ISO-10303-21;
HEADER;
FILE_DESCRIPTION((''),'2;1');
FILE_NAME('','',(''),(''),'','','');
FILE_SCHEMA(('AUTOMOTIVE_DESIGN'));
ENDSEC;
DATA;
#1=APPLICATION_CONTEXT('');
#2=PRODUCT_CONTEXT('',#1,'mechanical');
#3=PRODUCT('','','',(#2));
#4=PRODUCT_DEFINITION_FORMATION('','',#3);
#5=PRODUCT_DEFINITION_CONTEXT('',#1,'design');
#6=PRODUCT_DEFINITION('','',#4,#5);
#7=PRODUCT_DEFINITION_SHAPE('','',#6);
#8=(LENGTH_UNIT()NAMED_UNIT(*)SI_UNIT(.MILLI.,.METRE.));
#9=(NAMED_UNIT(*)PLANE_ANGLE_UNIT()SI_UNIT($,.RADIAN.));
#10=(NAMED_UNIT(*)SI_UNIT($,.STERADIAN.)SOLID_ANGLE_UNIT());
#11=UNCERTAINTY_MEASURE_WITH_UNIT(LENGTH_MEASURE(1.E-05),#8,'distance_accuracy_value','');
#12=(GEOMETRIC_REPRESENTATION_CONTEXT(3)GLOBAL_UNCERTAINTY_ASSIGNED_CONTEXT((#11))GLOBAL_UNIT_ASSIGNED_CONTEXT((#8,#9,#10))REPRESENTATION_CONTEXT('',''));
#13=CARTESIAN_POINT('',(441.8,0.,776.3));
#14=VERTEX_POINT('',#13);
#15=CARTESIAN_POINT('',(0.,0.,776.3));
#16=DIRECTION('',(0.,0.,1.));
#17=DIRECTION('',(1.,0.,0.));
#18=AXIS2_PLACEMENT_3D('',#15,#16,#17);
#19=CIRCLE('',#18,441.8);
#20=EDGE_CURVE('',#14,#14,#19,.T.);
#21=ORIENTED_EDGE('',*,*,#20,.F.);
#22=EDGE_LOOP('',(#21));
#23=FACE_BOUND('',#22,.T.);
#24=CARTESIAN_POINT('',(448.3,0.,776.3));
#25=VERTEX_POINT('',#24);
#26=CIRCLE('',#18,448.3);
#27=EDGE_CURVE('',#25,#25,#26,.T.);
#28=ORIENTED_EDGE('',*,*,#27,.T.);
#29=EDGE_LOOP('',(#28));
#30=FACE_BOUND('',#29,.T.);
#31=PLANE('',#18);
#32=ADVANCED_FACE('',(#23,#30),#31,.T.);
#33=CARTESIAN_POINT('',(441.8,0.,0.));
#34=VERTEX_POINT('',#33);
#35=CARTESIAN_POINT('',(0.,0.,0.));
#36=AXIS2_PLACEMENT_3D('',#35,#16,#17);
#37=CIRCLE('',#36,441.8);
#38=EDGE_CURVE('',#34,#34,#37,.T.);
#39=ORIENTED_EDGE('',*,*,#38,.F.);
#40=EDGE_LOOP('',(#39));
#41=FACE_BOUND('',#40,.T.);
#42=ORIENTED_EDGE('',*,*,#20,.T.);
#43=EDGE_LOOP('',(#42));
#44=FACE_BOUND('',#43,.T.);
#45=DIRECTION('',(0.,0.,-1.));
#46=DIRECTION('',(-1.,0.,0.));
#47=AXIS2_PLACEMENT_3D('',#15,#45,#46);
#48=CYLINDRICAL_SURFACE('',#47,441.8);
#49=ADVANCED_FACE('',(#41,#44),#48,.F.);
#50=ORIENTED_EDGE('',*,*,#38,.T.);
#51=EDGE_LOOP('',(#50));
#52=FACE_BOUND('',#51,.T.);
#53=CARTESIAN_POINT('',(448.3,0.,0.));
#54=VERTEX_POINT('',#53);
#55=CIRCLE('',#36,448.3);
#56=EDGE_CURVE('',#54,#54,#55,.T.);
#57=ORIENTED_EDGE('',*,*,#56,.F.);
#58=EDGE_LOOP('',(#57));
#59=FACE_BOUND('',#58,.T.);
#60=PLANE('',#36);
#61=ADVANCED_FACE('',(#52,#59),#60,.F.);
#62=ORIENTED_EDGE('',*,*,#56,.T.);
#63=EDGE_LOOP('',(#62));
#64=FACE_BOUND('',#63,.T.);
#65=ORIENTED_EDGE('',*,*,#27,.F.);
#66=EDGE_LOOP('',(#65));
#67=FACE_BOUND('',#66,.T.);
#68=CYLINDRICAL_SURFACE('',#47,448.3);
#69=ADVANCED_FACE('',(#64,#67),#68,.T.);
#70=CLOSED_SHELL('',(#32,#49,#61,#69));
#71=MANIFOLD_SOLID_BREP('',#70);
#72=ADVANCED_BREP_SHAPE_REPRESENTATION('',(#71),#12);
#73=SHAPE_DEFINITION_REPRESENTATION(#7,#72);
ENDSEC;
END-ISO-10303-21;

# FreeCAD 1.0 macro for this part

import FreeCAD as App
import Part
import Sketcher
from FreeCAD import Vector
Q = App.Units.Quantity

doc = App.newDocument("Part")
body = doc.addObject("PartDesign::Body", "Body")

# Sketch on XY plane
sketch1 = body.newObject("Sketcher::SketchObject", "Sketch")
sketch1.AttachmentSupport = (doc.getObject("XY_Plane"), [""])
sketch1.MapMode = "FlatFace"
sketch1.addGeometry([
    Part.Circle(Vector(0, 0, 0), Vector(0, 0, 1), 448.3),
    Part.Circle(Vector(0, 0, 0), Vector(0, 0, 1), 441.8),
], False)
sketch1.addConstraint([
    Sketcher.Constraint("Coincident", 0, 3, -1, 1),
    Sketcher.Constraint("Coincident", 1, 3, -1, 1),
    Sketcher.Constraint("Diameter", 0, Q("896.6 mm")),
    Sketcher.Constraint("Diameter", 1, Q("883.6 mm")),
])
pad1 = body.newObject("PartDesign::Pad", "Pad")
pad1.Profile = sketch1
pad1.Length = 776.3

doc.recompute()
